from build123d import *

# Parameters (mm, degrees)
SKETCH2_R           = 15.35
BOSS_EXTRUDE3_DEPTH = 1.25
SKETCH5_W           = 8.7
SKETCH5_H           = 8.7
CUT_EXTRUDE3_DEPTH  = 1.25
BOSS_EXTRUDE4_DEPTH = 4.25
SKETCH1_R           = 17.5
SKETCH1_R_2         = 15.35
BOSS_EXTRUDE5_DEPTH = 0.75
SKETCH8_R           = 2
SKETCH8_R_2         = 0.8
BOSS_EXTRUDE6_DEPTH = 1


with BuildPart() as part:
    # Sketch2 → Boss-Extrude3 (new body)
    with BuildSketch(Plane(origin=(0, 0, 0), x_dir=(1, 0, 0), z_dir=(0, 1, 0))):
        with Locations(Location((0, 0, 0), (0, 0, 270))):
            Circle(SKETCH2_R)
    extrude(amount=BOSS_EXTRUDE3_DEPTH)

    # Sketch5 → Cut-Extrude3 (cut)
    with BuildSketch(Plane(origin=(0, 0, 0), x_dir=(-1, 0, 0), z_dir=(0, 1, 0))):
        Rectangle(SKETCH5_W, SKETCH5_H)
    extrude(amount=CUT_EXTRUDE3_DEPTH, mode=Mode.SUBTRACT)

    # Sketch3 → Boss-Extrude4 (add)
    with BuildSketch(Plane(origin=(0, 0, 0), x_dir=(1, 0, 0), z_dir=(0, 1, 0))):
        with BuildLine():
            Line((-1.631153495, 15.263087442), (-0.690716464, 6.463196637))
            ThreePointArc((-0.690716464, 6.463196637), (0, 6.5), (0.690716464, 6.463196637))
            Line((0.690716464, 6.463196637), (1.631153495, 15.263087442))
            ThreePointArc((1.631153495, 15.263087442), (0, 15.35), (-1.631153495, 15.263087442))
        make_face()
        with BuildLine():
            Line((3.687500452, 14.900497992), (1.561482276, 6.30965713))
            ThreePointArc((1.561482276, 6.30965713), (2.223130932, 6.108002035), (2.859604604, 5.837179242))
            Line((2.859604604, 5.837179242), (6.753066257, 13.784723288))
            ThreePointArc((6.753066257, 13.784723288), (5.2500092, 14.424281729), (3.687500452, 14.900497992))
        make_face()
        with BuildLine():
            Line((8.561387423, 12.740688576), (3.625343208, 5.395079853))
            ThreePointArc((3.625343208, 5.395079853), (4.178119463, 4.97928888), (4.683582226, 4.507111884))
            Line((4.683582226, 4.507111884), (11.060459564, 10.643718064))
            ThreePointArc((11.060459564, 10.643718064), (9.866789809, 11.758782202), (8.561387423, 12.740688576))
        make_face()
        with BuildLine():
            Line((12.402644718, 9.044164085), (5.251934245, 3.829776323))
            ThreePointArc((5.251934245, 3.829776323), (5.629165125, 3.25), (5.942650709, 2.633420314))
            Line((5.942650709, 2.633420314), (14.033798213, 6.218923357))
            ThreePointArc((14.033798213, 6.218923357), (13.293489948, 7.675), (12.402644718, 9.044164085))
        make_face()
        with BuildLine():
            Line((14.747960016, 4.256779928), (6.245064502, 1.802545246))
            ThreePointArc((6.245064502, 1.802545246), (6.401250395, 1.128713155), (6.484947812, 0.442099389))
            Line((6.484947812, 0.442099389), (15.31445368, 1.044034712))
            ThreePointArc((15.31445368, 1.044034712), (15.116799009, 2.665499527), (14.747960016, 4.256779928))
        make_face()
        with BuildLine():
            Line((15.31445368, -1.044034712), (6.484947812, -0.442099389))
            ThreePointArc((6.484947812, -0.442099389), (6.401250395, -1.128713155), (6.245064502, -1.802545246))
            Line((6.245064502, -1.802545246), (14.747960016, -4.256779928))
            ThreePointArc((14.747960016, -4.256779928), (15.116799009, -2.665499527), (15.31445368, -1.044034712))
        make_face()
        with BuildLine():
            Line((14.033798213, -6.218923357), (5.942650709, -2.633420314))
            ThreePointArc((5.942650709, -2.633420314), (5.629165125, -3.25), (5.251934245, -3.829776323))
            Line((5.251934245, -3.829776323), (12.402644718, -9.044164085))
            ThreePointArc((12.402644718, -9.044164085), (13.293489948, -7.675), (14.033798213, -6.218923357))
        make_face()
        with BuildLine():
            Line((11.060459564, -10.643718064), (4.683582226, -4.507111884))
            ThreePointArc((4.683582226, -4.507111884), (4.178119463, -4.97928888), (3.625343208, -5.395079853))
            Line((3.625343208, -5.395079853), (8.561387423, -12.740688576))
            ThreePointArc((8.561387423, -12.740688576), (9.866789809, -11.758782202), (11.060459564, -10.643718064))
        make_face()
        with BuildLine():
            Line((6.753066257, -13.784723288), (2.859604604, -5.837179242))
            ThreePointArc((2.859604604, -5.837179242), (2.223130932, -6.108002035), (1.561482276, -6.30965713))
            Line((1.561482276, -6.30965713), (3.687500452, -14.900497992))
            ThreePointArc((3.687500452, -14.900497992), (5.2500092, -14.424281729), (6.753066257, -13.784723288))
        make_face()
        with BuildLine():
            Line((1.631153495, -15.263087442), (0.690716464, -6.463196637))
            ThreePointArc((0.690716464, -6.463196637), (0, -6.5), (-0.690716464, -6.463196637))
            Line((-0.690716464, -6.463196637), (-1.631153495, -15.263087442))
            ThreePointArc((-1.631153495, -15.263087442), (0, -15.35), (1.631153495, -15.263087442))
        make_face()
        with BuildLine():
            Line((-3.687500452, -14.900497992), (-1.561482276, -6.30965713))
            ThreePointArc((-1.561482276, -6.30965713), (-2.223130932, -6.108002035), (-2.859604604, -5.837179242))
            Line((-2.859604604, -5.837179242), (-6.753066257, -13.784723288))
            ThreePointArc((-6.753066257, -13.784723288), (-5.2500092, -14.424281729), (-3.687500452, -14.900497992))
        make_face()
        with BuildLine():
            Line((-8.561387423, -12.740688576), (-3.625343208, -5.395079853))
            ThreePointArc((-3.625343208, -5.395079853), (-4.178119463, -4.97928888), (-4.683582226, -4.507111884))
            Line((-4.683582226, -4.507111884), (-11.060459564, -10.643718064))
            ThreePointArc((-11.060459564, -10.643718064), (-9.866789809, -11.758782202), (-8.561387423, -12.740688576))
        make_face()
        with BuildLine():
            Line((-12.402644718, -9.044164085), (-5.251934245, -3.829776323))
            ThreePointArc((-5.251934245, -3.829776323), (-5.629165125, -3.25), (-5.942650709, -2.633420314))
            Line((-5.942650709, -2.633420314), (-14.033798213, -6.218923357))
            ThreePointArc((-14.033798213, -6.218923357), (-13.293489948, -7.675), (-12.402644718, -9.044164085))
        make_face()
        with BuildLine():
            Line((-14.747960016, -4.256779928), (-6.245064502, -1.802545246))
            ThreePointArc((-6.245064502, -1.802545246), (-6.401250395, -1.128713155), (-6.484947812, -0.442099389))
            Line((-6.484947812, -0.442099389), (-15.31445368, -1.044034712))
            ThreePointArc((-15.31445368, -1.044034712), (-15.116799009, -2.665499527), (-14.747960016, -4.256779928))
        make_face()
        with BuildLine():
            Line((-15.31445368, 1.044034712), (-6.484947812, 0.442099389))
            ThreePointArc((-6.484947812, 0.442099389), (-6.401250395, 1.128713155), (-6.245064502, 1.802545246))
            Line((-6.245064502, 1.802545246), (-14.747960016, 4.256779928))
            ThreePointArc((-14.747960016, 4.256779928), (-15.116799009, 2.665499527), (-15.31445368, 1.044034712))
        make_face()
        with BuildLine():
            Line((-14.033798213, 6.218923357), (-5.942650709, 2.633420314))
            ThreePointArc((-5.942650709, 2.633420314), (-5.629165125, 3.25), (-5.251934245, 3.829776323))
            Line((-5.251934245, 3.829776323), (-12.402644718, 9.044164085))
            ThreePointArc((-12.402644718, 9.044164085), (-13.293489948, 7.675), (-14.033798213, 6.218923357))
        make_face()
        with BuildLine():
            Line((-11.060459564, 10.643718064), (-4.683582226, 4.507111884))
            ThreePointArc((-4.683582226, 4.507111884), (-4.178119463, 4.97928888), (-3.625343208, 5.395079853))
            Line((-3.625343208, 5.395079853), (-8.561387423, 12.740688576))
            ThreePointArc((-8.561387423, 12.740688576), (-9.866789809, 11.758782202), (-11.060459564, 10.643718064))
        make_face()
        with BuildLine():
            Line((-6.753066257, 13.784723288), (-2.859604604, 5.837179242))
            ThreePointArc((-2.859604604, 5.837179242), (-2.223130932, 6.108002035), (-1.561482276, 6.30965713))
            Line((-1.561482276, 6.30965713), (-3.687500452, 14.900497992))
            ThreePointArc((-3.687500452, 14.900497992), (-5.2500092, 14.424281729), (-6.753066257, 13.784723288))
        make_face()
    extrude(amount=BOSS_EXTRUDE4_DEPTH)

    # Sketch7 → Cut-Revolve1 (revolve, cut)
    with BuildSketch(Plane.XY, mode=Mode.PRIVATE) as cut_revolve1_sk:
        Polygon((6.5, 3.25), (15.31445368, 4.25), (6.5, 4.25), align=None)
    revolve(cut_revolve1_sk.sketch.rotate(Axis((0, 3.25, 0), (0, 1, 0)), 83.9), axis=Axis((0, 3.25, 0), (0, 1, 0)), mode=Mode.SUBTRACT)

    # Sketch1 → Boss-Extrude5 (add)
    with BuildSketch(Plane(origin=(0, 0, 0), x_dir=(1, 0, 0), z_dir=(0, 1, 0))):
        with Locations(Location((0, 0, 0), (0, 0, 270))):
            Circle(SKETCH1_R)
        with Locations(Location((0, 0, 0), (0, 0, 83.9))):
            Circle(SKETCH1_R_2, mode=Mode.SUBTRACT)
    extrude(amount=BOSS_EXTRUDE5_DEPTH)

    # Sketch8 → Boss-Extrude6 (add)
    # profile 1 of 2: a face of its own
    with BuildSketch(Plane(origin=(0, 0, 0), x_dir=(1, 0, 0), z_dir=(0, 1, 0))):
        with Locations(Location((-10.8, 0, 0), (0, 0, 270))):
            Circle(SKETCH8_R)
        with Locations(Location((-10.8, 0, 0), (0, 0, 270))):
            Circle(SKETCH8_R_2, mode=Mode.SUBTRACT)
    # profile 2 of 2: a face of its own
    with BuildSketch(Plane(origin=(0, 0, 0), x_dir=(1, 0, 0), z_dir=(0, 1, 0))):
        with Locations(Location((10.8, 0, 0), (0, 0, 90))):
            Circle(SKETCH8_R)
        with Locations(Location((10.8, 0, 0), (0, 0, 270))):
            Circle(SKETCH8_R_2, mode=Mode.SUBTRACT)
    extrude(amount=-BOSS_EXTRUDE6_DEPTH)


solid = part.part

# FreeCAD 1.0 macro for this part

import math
import FreeCAD as App
import Part
import Sketcher

V = App.Vector
Q = App.Units.Quantity

doc = App.newDocument("Part")
params = doc.addObject("Spreadsheet::Sheet", "Params")
for row, (alias, value) in enumerate([
    ("sketch1_diameter", "30.7 mm"),
    ("pad1_length", "1.25 mm"),
    ("sketch2_width", "8.7 mm"),
    ("pocket1_length", "1.25 mm"),
    ("sketch3_radius", "6.5 mm"),
    ("sketch3_radius2", "15.35 mm"),
    ("pad2_length", "4.25 mm"),
    ("sketch4_height", "1 mm"),
    ("groove_angle", "360 deg"),
    ("sketch5_diameter", "35 mm"),
    ("sketch5_diameter2", "30.7 mm"),
    ("pad3_length", "0.75 mm"),
    ("sketch6_diameter", "4 mm"),
    ("sketch6_diameter2", "1.6 mm"),
    ("pad4_length", "1 mm"),
], start=1):
    params.set(f"A{row}", alias)
    params.set(f"B{row}", "=" + value)
    params.setAlias(f"B{row}", alias)

body = doc.addObject("PartDesign::Body", "Body")

# Sketch on XZ plane
sketch1 = body.newObject("Sketcher::SketchObject", "Sketch")
sketch1.AttachmentSupport = (doc.getObject("XZ_Plane"), [""])
sketch1.MapMode = "FlatFace"
sketch1.addGeometry(Part.Circle(V(0, 0, 0), V(0, 0, 1), 15), False)
sketch1.addConstraint([
    Sketcher.Constraint("Coincident", 0, 3, -1, 1),
    Sketcher.Constraint("Diameter", 0, Q("30.7 mm")),
])
sketch1.setExpression("Constraints[1]", "Params.sketch1_diameter")
pad1 = body.newObject("PartDesign::Pad", "Pad")
pad1.Profile = sketch1
pad1.setExpression("Length", "Params.pad1_length")
pad1.Reversed = True

# Sketch on XZ plane
sketch2 = body.newObject("Sketcher::SketchObject", "Sketch001")
sketch2.AttachmentSupport = (doc.getObject("XZ_Plane"), [""])
sketch2.MapMode = "FlatFace"
sketch2.addGeometry([
    Part.LineSegment(V(4, 4, 0), V(4, -4, 0)),
    Part.LineSegment(V(4, -4, 0), V(-4, -4, 0)),
    Part.LineSegment(V(-4, -4, 0), V(-4, 4, 0)),
    Part.LineSegment(V(-4, 4, 0), V(4, 4, 0)),
], False)
sketch2.addConstraint([
    Sketcher.Constraint("Coincident", 0, 2, 1, 1),
    Sketcher.Constraint("Coincident", 1, 2, 2, 1),
    Sketcher.Constraint("Coincident", 2, 2, 3, 1),
    Sketcher.Constraint("Coincident", 3, 2, 0, 1),
    Sketcher.Constraint("Vertical", 0),
    Sketcher.Constraint("Horizontal", 1),
    Sketcher.Constraint("Vertical", 2),
    Sketcher.Constraint("Horizontal", 3),
    Sketcher.Constraint("Symmetric", 0, 2, 2, 2, -1, 1),
    Sketcher.Constraint("Equal", 3, 0),
    Sketcher.Constraint("DistanceX", 1, 2, 1, 1, Q("8.7 mm")),
])
sketch2.setExpression("Constraints[10]", "Params.sketch2_width")
pocket1 = body.newObject("PartDesign::Pocket", "Pocket")
pocket1.Profile = sketch2
pocket1.setExpression("Length", "Params.pocket1_length")

# Sketch on XZ plane
sketch3 = body.newObject("Sketcher::SketchObject", "Sketch002")
sketch3.AttachmentSupport = (doc.getObject("XZ_Plane"), [""])
sketch3.MapMode = "FlatFace"
sketch3.addGeometry([
    Part.LineSegment(V(-1.6, -15.3, 0), V(-0.7, -6.5, 0)),  # 0
    Part.ArcOfCircle(Part.Circle(V(0, 0, 0), V(0, 0, 1), 6.5), math.radians(-96.1), math.radians(-83.9)),  # 1
    Part.LineSegment(V(0.7, -6.5, 0), V(1.6, -15.3, 0)),  # 2
    Part.ArcOfCircle(Part.Circle(V(0, 0, 0), V(0, 0, 1), 15.3), math.radians(-96.1), math.radians(-83.9)),  # 3
    Part.LineSegment(V(3.7, -14.9, 0), V(1.6, -6.3, 0)),  # 4
    Part.ArcOfCircle(Part.Circle(V(0, 0, 0), V(0, 0, 1), 6.5), math.radians(-76.1), math.radians(-63.9)),  # 5
    Part.LineSegment(V(2.9, -5.8, 0), V(6.8, -13.8, 0)),  # 6
    Part.ArcOfCircle(Part.Circle(V(0, 0, 0), V(0, 0, 1), 15.3), math.radians(-76.1), math.radians(-63.9)),  # 7
    Part.LineSegment(V(8.6, -12.7, 0), V(3.6, -5.4, 0)),  # 8
    Part.ArcOfCircle(Part.Circle(V(0, 0, 0), V(0, 0, 1), 6.5), math.radians(-56.1), math.radians(-43.9)),  # 9
    Part.LineSegment(V(4.7, -4.5, 0), V(11.1, -10.6, 0)),  # 10
    Part.ArcOfCircle(Part.Circle(V(0, 0, 0), V(0, 0, 1), 15.3), math.radians(-56.1), math.radians(-43.9)),  # 11
    Part.LineSegment(V(12.4, -9, 0), V(5.3, -3.8, 0)),  # 12
    Part.ArcOfCircle(Part.Circle(V(0, 0, 0), V(0, 0, 1), 6.5), math.radians(-36.1), math.radians(-23.9)),  # 13
    Part.LineSegment(V(5.9, -2.6, 0), V(14, -6.2, 0)),  # 14
    Part.ArcOfCircle(Part.Circle(V(0, 0, 0), V(0, 0, 1), 15.4), math.radians(-36.1), math.radians(-23.9)),  # 15
    Part.LineSegment(V(14.7, -4.3, 0), V(6.2, -1.8, 0)),  # 16
    Part.ArcOfCircle(Part.Circle(V(0, 0, 0), V(0, 0, 1), 6.5), math.radians(-16.1), math.radians(-3.9)),  # 17
    Part.LineSegment(V(6.5, -0.4, 0), V(15.3, -1, 0)),  # 18
    Part.ArcOfCircle(Part.Circle(V(0, 0, 0), V(0, 0, 1), 15.3), math.radians(-16.1), math.radians(-3.9)),  # 19
    Part.LineSegment(V(15.3, 1, 0), V(6.5, 0.4, 0)),  # 20
    Part.ArcOfCircle(Part.Circle(V(0, 0, 0), V(0, 0, 1), 6.5), math.radians(3.9), math.radians(16.1)),  # 21
    Part.LineSegment(V(6.2, 1.8, 0), V(14.7, 4.3, 0)),  # 22
    Part.ArcOfCircle(Part.Circle(V(0, 0, 0), V(0, 0, 1), 15.3), math.radians(3.9), math.radians(16.1)),  # 23
    Part.LineSegment(V(14, 6.2, 0), V(5.9, 2.6, 0)),  # 24
    Part.ArcOfCircle(Part.Circle(V(0, 0, 0), V(0, 0, 1), 6.5), math.radians(23.9), math.radians(36.1)),  # 25
    Part.LineSegment(V(5.3, 3.8, 0), V(12.4, 9, 0)),  # 26
    Part.ArcOfCircle(Part.Circle(V(0, 0, 0), V(0, 0, 1), 15.4), math.radians(23.9), math.radians(36.1)),  # 27
    Part.LineSegment(V(11.1, 10.6, 0), V(4.7, 4.5, 0)),  # 28
    Part.ArcOfCircle(Part.Circle(V(0, 0, 0), V(0, 0, 1), 6.5), math.radians(43.9), math.radians(56.1)),  # 29
    Part.LineSegment(V(3.6, 5.4, 0), V(8.6, 12.7, 0)),  # 30
    Part.ArcOfCircle(Part.Circle(V(0, 0, 0), V(0, 0, 1), 15.3), math.radians(43.9), math.radians(56.1)),  # 31
    Part.LineSegment(V(6.8, 13.8, 0), V(2.9, 5.8, 0)),  # 32
    Part.ArcOfCircle(Part.Circle(V(0, 0, 0), V(0, 0, 1), 6.5), math.radians(63.9), math.radians(76.1)),  # 33
    Part.LineSegment(V(1.6, 6.3, 0), V(3.7, 14.9, 0)),  # 34
    Part.ArcOfCircle(Part.Circle(V(0, 0, 0), V(0, 0, 1), 15.3), math.radians(63.9), math.radians(76.1)),  # 35
    Part.LineSegment(V(1.6, 15.3, 0), V(0.7, 6.5, 0)),  # 36
    Part.ArcOfCircle(Part.Circle(V(0, 0, 0), V(0, 0, 1), 6.5), math.radians(83.9), math.radians(96.1)),  # 37
    Part.LineSegment(V(-0.7, 6.5, 0), V(-1.6, 15.3, 0)),  # 38
    Part.ArcOfCircle(Part.Circle(V(0, 0, 0), V(0, 0, 1), 15.3), math.radians(83.9), math.radians(96.1)),  # 39
    Part.LineSegment(V(-3.7, 14.9, 0), V(-1.6, 6.3, 0)),  # 40
    Part.ArcOfCircle(Part.Circle(V(0, 0, 0), V(0, 0, 1), 6.5), math.radians(103.9), math.radians(116.1)),  # 41
    Part.LineSegment(V(-2.9, 5.8, 0), V(-6.8, 13.8, 0)),  # 42
    Part.ArcOfCircle(Part.Circle(V(0, 0, 0), V(0, 0, 1), 15.3), math.radians(103.9), math.radians(116.1)),  # 43
    Part.LineSegment(V(-8.6, 12.7, 0), V(-3.6, 5.4, 0)),  # 44
    Part.ArcOfCircle(Part.Circle(V(0, 0, 0), V(0, 0, 1), 6.5), math.radians(123.9), math.radians(136.1)),  # 45
    Part.LineSegment(V(-4.7, 4.5, 0), V(-11.1, 10.6, 0)),  # 46
    Part.ArcOfCircle(Part.Circle(V(0, 0, 0), V(0, 0, 1), 15.3), math.radians(123.9), math.radians(136.1)),  # 47
    Part.LineSegment(V(-12.4, 9, 0), V(-5.3, 3.8, 0)),  # 48
    Part.ArcOfCircle(Part.Circle(V(0, 0, 0), V(0, 0, 1), 6.5), math.radians(143.9), math.radians(156.1)),  # 49
    Part.LineSegment(V(-5.9, 2.6, 0), V(-14, 6.2, 0)),  # 50
    Part.ArcOfCircle(Part.Circle(V(0, 0, 0), V(0, 0, 1), 15.4), math.radians(143.9), math.radians(156.1)),  # 51
    Part.LineSegment(V(-14.7, 4.3, 0), V(-6.2, 1.8, 0)),  # 52
    Part.ArcOfCircle(Part.Circle(V(0, 0, 0), V(0, 0, 1), 6.5), math.radians(163.9), math.radians(176.1)),  # 53
    Part.LineSegment(V(-6.5, 0.4, 0), V(-15.3, 1, 0)),  # 54
    Part.ArcOfCircle(Part.Circle(V(0, 0, 0), V(0, 0, 1), 15.3), math.radians(163.9), math.radians(176.1)),  # 55
    Part.LineSegment(V(-15.3, -1, 0), V(-6.5, -0.4, 0)),  # 56
    Part.ArcOfCircle(Part.Circle(V(0, 0, 0), V(0, 0, 1), 6.5), math.radians(-176.1), math.radians(-163.9)),  # 57
    Part.LineSegment(V(-6.2, -1.8, 0), V(-14.7, -4.3, 0)),  # 58
    Part.ArcOfCircle(Part.Circle(V(0, 0, 0), V(0, 0, 1), 15.3), math.radians(-176.1), math.radians(-163.9)),  # 59
    Part.LineSegment(V(-14, -6.2, 0), V(-5.9, -2.6, 0)),  # 60
    Part.ArcOfCircle(Part.Circle(V(0, 0, 0), V(0, 0, 1), 6.5), math.radians(-156.1), math.radians(-143.9)),  # 61
    Part.LineSegment(V(-5.3, -3.8, 0), V(-12.4, -9, 0)),  # 62
    Part.ArcOfCircle(Part.Circle(V(0, 0, 0), V(0, 0, 1), 15.4), math.radians(-156.1), math.radians(-143.9)),  # 63
    Part.LineSegment(V(-11.1, -10.6, 0), V(-4.7, -4.5, 0)),  # 64
    Part.ArcOfCircle(Part.Circle(V(0, 0, 0), V(0, 0, 1), 6.5), math.radians(-136.1), math.radians(-123.9)),  # 65
    Part.LineSegment(V(-3.6, -5.4, 0), V(-8.6, -12.7, 0)),  # 66
    Part.ArcOfCircle(Part.Circle(V(0, 0, 0), V(0, 0, 1), 15.3), math.radians(-136.1), math.radians(-123.9)),  # 67
    Part.LineSegment(V(-6.8, -13.8, 0), V(-2.9, -5.8, 0)),  # 68
    Part.ArcOfCircle(Part.Circle(V(0, 0, 0), V(0, 0, 1), 6.5), math.radians(-116.1), math.radians(-103.9)),  # 69
    Part.LineSegment(V(-1.6, -6.3, 0), V(-3.7, -14.9, 0)),  # 70
    Part.ArcOfCircle(Part.Circle(V(0, 0, 0), V(0, 0, 1), 15.3), math.radians(-116.1), math.radians(-103.9)),  # 71
], False)
sketch3.addConstraint([
    Sketcher.Constraint("Coincident", 0, 2, 1, 1),
    Sketcher.Constraint("Coincident", 1, 2, 2, 1),
    Sketcher.Constraint("Coincident", 2, 2, 3, 2),
    Sketcher.Constraint("Coincident", 3, 1, 0, 1),
    Sketcher.Constraint("Coincident", 4, 2, 5, 1),
    Sketcher.Constraint("Coincident", 5, 2, 6, 1),
    Sketcher.Constraint("Coincident", 6, 2, 7, 2),
    Sketcher.Constraint("Coincident", 7, 1, 4, 1),
    Sketcher.Constraint("Coincident", 8, 2, 9, 1),
    Sketcher.Constraint("Coincident", 9, 2, 10, 1),
    Sketcher.Constraint("Coincident", 10, 2, 11, 2),
    Sketcher.Constraint("Coincident", 11, 1, 8, 1),
    Sketcher.Constraint("Coincident", 12, 2, 13, 1),
    Sketcher.Constraint("Coincident", 13, 2, 14, 1),
    Sketcher.Constraint("Coincident", 14, 2, 15, 2),
    Sketcher.Constraint("Coincident", 15, 1, 12, 1),
    Sketcher.Constraint("Coincident", 16, 2, 17, 1),
    Sketcher.Constraint("Coincident", 17, 2, 18, 1),
    Sketcher.Constraint("Coincident", 18, 2, 19, 2),
    Sketcher.Constraint("Coincident", 19, 1, 16, 1),
    Sketcher.Constraint("Coincident", 20, 2, 21, 1),
    Sketcher.Constraint("Coincident", 21, 2, 22, 1),
    Sketcher.Constraint("Coincident", 22, 2, 23, 2),
    Sketcher.Constraint("Coincident", 23, 1, 20, 1),
    Sketcher.Constraint("Coincident", 24, 2, 25, 1),
    Sketcher.Constraint("Coincident", 25, 2, 26, 1),
    Sketcher.Constraint("Coincident", 26, 2, 27, 2),
    Sketcher.Constraint("Coincident", 27, 1, 24, 1),
    Sketcher.Constraint("Coincident", 28, 2, 29, 1),
    Sketcher.Constraint("Coincident", 29, 2, 30, 1),
    Sketcher.Constraint("Coincident", 30, 2, 31, 2),
    Sketcher.Constraint("Coincident", 31, 1, 28, 1),
    Sketcher.Constraint("Coincident", 32, 2, 33, 1),
    Sketcher.Constraint("Coincident", 33, 2, 34, 1),
    Sketcher.Constraint("Coincident", 34, 2, 35, 2),
    Sketcher.Constraint("Coincident", 35, 1, 32, 1),
    Sketcher.Constraint("Coincident", 36, 2, 37, 1),
    Sketcher.Constraint("Coincident", 37, 2, 38, 1),
    Sketcher.Constraint("Coincident", 38, 2, 39, 2),
    Sketcher.Constraint("Coincident", 39, 1, 36, 1),
    Sketcher.Constraint("Coincident", 40, 2, 41, 1),
    Sketcher.Constraint("Coincident", 41, 2, 42, 1),
    Sketcher.Constraint("Coincident", 42, 2, 43, 2),
    Sketcher.Constraint("Coincident", 43, 1, 40, 1),
    Sketcher.Constraint("Coincident", 44, 2, 45, 1),
    Sketcher.Constraint("Coincident", 45, 2, 46, 1),
    Sketcher.Constraint("Coincident", 46, 2, 47, 2),
    Sketcher.Constraint("Coincident", 47, 1, 44, 1),
    Sketcher.Constraint("Coincident", 48, 2, 49, 1),
    Sketcher.Constraint("Coincident", 49, 2, 50, 1),
    Sketcher.Constraint("Coincident", 50, 2, 51, 2),
    Sketcher.Constraint("Coincident", 51, 1, 48, 1),
    Sketcher.Constraint("Coincident", 52, 2, 53, 1),
    Sketcher.Constraint("Coincident", 53, 2, 54, 1),
    Sketcher.Constraint("Coincident", 54, 2, 55, 2),
    Sketcher.Constraint("Coincident", 55, 1, 52, 1),
    Sketcher.Constraint("Coincident", 56, 2, 57, 1),
    Sketcher.Constraint("Coincident", 57, 2, 58, 1),
    Sketcher.Constraint("Coincident", 58, 2, 59, 2),
    Sketcher.Constraint("Coincident", 59, 1, 56, 1),
    Sketcher.Constraint("Coincident", 60, 2, 61, 1),
    Sketcher.Constraint("Coincident", 61, 2, 62, 1),
    Sketcher.Constraint("Coincident", 62, 2, 63, 2),
    Sketcher.Constraint("Coincident", 63, 1, 60, 1),
    Sketcher.Constraint("Coincident", 64, 2, 65, 1),
    Sketcher.Constraint("Coincident", 65, 2, 66, 1),
    Sketcher.Constraint("Coincident", 66, 2, 67, 2),
    Sketcher.Constraint("Coincident", 67, 1, 64, 1),
    Sketcher.Constraint("Coincident", 68, 2, 69, 1),
    Sketcher.Constraint("Coincident", 69, 2, 70, 1),
    Sketcher.Constraint("Coincident", 70, 2, 71, 2),
    Sketcher.Constraint("Coincident", 71, 1, 68, 1),
    Sketcher.Constraint("Coincident", 1, 3, -1, 1),
    Sketcher.Constraint("Coincident", 3, 3, -1, 1),
    Sketcher.Constraint("Coincident", 5, 3, -1, 1),
    Sketcher.Constraint("Coincident", 7, 3, -1, 1),
    Sketcher.Constraint("Coincident", 9, 3, -1, 1),
    Sketcher.Constraint("Coincident", 11, 3, -1, 1),
    Sketcher.Constraint("Coincident", 13, 3, -1, 1),
    Sketcher.Constraint("Coincident", 15, 3, -1, 1),
    Sketcher.Constraint("Coincident", 17, 3, -1, 1),
    Sketcher.Constraint("Coincident", 19, 3, -1, 1),
    Sketcher.Constraint("Coincident", 21, 3, -1, 1),
    Sketcher.Constraint("Coincident", 23, 3, -1, 1),
    Sketcher.Constraint("Coincident", 25, 3, -1, 1),
    Sketcher.Constraint("Coincident", 27, 3, -1, 1),
    Sketcher.Constraint("Coincident", 29, 3, -1, 1),
    Sketcher.Constraint("Coincident", 31, 3, -1, 1),
    Sketcher.Constraint("Coincident", 33, 3, -1, 1),
    Sketcher.Constraint("Coincident", 35, 3, -1, 1),
    Sketcher.Constraint("Coincident", 37, 3, -1, 1),
    Sketcher.Constraint("Coincident", 39, 3, -1, 1),
    Sketcher.Constraint("Coincident", 41, 3, -1, 1),
    Sketcher.Constraint("Coincident", 43, 3, -1, 1),
    Sketcher.Constraint("Coincident", 45, 3, -1, 1),
    Sketcher.Constraint("Coincident", 47, 3, -1, 1),
    Sketcher.Constraint("Coincident", 49, 3, -1, 1),
    Sketcher.Constraint("Coincident", 51, 3, -1, 1),
    Sketcher.Constraint("Coincident", 53, 3, -1, 1),
    Sketcher.Constraint("Coincident", 55, 3, -1, 1),
    Sketcher.Constraint("Coincident", 57, 3, -1, 1),
    Sketcher.Constraint("Coincident", 59, 3, -1, 1),
    Sketcher.Constraint("Coincident", 61, 3, -1, 1),
    Sketcher.Constraint("Coincident", 63, 3, -1, 1),
    Sketcher.Constraint("Coincident", 65, 3, -1, 1),
    Sketcher.Constraint("Coincident", 67, 3, -1, 1),
    Sketcher.Constraint("Coincident", 69, 3, -1, 1),
    Sketcher.Constraint("Coincident", 71, 3, -1, 1),
    Sketcher.Constraint("Equal", 1, 5),
    Sketcher.Constraint("Equal", 3, 7),
    Sketcher.Constraint("Equal", 5, 9),
    Sketcher.Constraint("Equal", 7, 11),
    Sketcher.Constraint("Equal", 9, 13),
    Sketcher.Constraint("Equal", 11, 15),
    Sketcher.Constraint("Equal", 13, 17),
    Sketcher.Constraint("Equal", 15, 19),
    Sketcher.Constraint("Equal", 17, 21),
    Sketcher.Constraint("Equal", 19, 23),
    Sketcher.Constraint("Equal", 21, 25),
    Sketcher.Constraint("Equal", 23, 27),
    Sketcher.Constraint("Equal", 25, 29),
    Sketcher.Constraint("Equal", 27, 31),
    Sketcher.Constraint("Equal", 29, 33),
    Sketcher.Constraint("Equal", 31, 35),
    Sketcher.Constraint("Equal", 33, 37),
    Sketcher.Constraint("Equal", 35, 39),
    Sketcher.Constraint("Equal", 37, 41),
    Sketcher.Constraint("Equal", 39, 43),
    Sketcher.Constraint("Equal", 41, 45),
    Sketcher.Constraint("Equal", 43, 47),
    Sketcher.Constraint("Equal", 45, 49),
    Sketcher.Constraint("Equal", 47, 51),
    Sketcher.Constraint("Equal", 49, 53),
    Sketcher.Constraint("Equal", 51, 55),
    Sketcher.Constraint("Equal", 53, 57),
    Sketcher.Constraint("Equal", 55, 59),
    Sketcher.Constraint("Equal", 57, 61),
    Sketcher.Constraint("Equal", 59, 63),
    Sketcher.Constraint("Equal", 61, 65),
    Sketcher.Constraint("Equal", 63, 67),
    Sketcher.Constraint("Equal", 65, 69),
    Sketcher.Constraint("Equal", 67, 71),
    Sketcher.Constraint("Parallel", 0, 36),
    Sketcher.Constraint("Parallel", 2, 38),
    Sketcher.Constraint("Parallel", 4, 40),
    Sketcher.Constraint("Parallel", 6, 42),
    Sketcher.Constraint("Parallel", 8, 44),
    Sketcher.Constraint("Parallel", 10, 46),
    Sketcher.Constraint("Parallel", 12, 48),
    Sketcher.Constraint("Parallel", 14, 50),
    Sketcher.Constraint("Parallel", 16, 52),
    Sketcher.Constraint("Parallel", 18, 54),
    Sketcher.Constraint("Parallel", 20, 56),
    Sketcher.Constraint("Parallel", 22, 58),
    Sketcher.Constraint("Parallel", 24, 60),
    Sketcher.Constraint("Parallel", 26, 62),
    Sketcher.Constraint("Parallel", 28, 64),
    Sketcher.Constraint("Parallel", 30, 66),
    Sketcher.Constraint("Parallel", 32, 68),
    Sketcher.Constraint("Parallel", 34, 70),
    Sketcher.Constraint("Horizontal", 0, 2, 1, 2),
    Sketcher.Constraint("Horizontal", 2, 2, 3, 1),
    Sketcher.Constraint("Horizontal", 36, 2, 37, 2),
    Sketcher.Constraint("Horizontal", 33, 2, 40, 2),
    Sketcher.Constraint("Horizontal", 32, 2, 41, 2),
    Sketcher.Constraint("Horizontal", 35, 1, 42, 2),
    Sketcher.Constraint("Horizontal", 34, 2, 43, 1),
    Sketcher.Constraint("Horizontal", 29, 2, 44, 2),
    Sketcher.Constraint("Horizontal", 28, 2, 45, 2),
    Sketcher.Constraint("Horizontal", 31, 1, 46, 2),
    Sketcher.Constraint("Horizontal", 30, 2, 47, 1),
    Sketcher.Constraint("Horizontal", 25, 2, 48, 2),
    Sketcher.Constraint("Horizontal", 24, 2, 49, 2),
    Sketcher.Constraint("Horizontal", 27, 1, 50, 2),
    Sketcher.Constraint("Horizontal", 26, 2, 51, 1),
    Sketcher.Constraint("Horizontal", 21, 2, 52, 2),
    Sketcher.Constraint("Horizontal", 20, 2, 53, 2),
    Sketcher.Constraint("Horizontal", 23, 1, 54, 2),
    Sketcher.Constraint("Horizontal", 22, 2, 55, 1),
    Sketcher.Constraint("Horizontal", 17, 2, 56, 2),
    Sketcher.Constraint("Horizontal", 16, 2, 57, 2),
    Sketcher.Constraint("Horizontal", 13, 2, 60, 2),
    Sketcher.Constraint("Horizontal", 12, 2, 61, 2),
    Sketcher.Constraint("Horizontal", 9, 2, 64, 2),
    Sketcher.Constraint("Horizontal", 8, 2, 65, 2),
    Sketcher.Constraint("Horizontal", 5, 2, 68, 2),
    Sketcher.Constraint("Horizontal", 4, 2, 69, 2),
    Sketcher.Constraint("Vertical", 17, 2, 20, 2),
    Sketcher.Constraint("Vertical", 16, 2, 21, 2),
    Sketcher.Constraint("Vertical", 13, 2, 24, 2),
    Sketcher.Constraint("Vertical", 12, 2, 25, 2),
    Sketcher.Constraint("Vertical", 9, 2, 28, 2),
    Sketcher.Constraint("Vertical", 8, 2, 29, 2),
    Sketcher.Constraint("Vertical", 5, 2, 32, 2),
    Sketcher.Constraint("Vertical", 4, 2, 33, 2),
    Sketcher.Constraint("Vertical", 1, 2, 36, 2),
    Sketcher.Constraint("Radius", 1, Q("6.5 mm")),
    Sketcher.Constraint("Radius", 3, Q("15.35 mm")),
    Sketcher.Constraint("Angle", 0, Q("83.9 deg")),
    Sketcher.Constraint("Angle", 4, Q("103.9 deg")),
    Sketcher.Constraint("Angle", 6, Q("-63.9 deg")),
    Sketcher.Constraint("Angle", 8, Q("123.9 deg")),
    Sketcher.Constraint("Angle", 10, Q("-43.9 deg")),
    Sketcher.Constraint("Angle", 12, Q("143.9 deg")),
    Sketcher.Constraint("Angle", 14, Q("-23.9 deg")),
    Sketcher.Constraint("Angle", 16, Q("163.9 deg")),
    Sketcher.Constraint("Angle", 18, Q("-3.9 deg")),
    Sketcher.Constraint("DistanceX", -1, 1, 7, 1, Q("3.6875 mm")),
    Sketcher.Constraint("DistanceX", -1, 1, 14, 2, Q("14.033798 mm")),
    Sketcher.Constraint("DistanceY", 17, 2, -1, 1, Q("0.442099 mm")),
    Sketcher.Constraint("DistanceY", 5, 2, -1, 1, Q("5.837179 mm")),
    Sketcher.Constraint("DistanceY", 8, 2, -1, 1, Q("5.39508 mm")),
    Sketcher.Constraint("DistanceY", 9, 2, -1, 1, Q("4.507112 mm")),
    Sketcher.Constraint("DistanceX", -1, 1, 19, 1, Q("14.74796 mm")),
    Sketcher.Constraint("DistanceX", 0, 2, -1, 1, Q("0.690716 mm")),
    Sketcher.Constraint("DistanceX", -1, 1, 12, 2, Q("5.251934 mm")),
])
sketch3.setExpression("Constraints[196]", "Params.sketch3_radius")
sketch3.setExpression("Constraints[197]", "Params.sketch3_radius2")
pad2 = body.newObject("PartDesign::Pad", "Pad001")
pad2.Profile = sketch3
pad2.setExpression("Length", "Params.pad2_length")
pad2.Reversed = True

# Sketch on XY plane
sketch4 = body.newObject("Sketcher::SketchObject", "Sketch003")
sketch4.AttachmentSupport = (doc.getObject("XY_Plane"), [""])
sketch4.MapMode = "FlatFace"
sketch4.addGeometry([
    Part.LineSegment(V(6.5, 3.2, 0), V(15.3, 4.2, 0)),
    Part.LineSegment(V(15.3, 4.2, 0), V(6.5, 4.2, 0)),
    Part.LineSegment(V(6.5, 4.2, 0), V(6.5, 3.2, 0)),
], False)
sketch4.addConstraint([
    Sketcher.Constraint("Coincident", 0, 2, 1, 1),
    Sketcher.Constraint("Coincident", 1, 2, 2, 1),
    Sketcher.Constraint("Coincident", 2, 2, 0, 1),
    Sketcher.Constraint("Horizontal", 1),
    Sketcher.Constraint("Vertical", 2),
    Sketcher.Constraint("DistanceY", 2, 2, 2, 1, Q("1 mm")),
    Sketcher.Constraint("DistanceX", -1, 1, 1, 2, Q("6.5 mm")),
    Sketcher.Constraint("DistanceY", -1, 1, 0, 2, Q("4.25 mm")),
    Sketcher.Constraint("DistanceX", 1, 2, 1, 1, Q("8.814454 mm")),
])
sketch4.setExpression("Constraints[5]", "Params.sketch4_height")
groove = body.newObject("PartDesign::Groove", "Groove")
groove.Profile = sketch4
groove.ReferenceAxis = (sketch4, ["V_Axis"])
groove.setExpression("Angle", "Params.groove_angle")

# Sketch on XZ plane
sketch5 = body.newObject("Sketcher::SketchObject", "Sketch004")
sketch5.AttachmentSupport = (doc.getObject("XZ_Plane"), [""])
sketch5.MapMode = "FlatFace"
sketch5.addGeometry([
    Part.Circle(V(0, 0, 0), V(0, 0, 1), 18),
    Part.Circle(V(0, 0, 0), V(0, 0, 1), 15),
], False)
sketch5.addConstraint([
    Sketcher.Constraint("Coincident", 0, 3, -1, 1),
    Sketcher.Constraint("Coincident", 1, 3, -1, 1),
    Sketcher.Constraint("Diameter", 0, Q("35 mm")),
    Sketcher.Constraint("Diameter", 1, Q("30.7 mm")),
])
sketch5.setExpression("Constraints[2]", "Params.sketch5_diameter")
sketch5.setExpression("Constraints[3]", "Params.sketch5_diameter2")
pad3 = body.newObject("PartDesign::Pad", "Pad002")
pad3.Profile = sketch5
pad3.setExpression("Length", "Params.pad3_length")
pad3.Reversed = True

# Sketch on XZ plane
sketch6 = body.newObject("Sketcher::SketchObject", "Sketch005")
sketch6.AttachmentSupport = (doc.getObject("XZ_Plane"), [""])
sketch6.MapMode = "FlatFace"
sketch6.addGeometry([
    Part.Circle(V(-10.8, 0, 0), V(0, 0, 1), 2),
    Part.Circle(V(-10.8, 0, 0), V(0, 0, 1), 0.8),
    Part.Circle(V(10.8, 0, 0), V(0, 0, 1), 2),
    Part.Circle(V(10.8, 0, 0), V(0, 0, 1), 0.8),
], False)
sketch6.addConstraint([
    Sketcher.Constraint("Coincident", 1, 3, 0, 3),
    Sketcher.Constraint("Coincident", 3, 3, 2, 3),
    Sketcher.Constraint("Equal", 0, 2),
    Sketcher.Constraint("Equal", 1, 3),
    Sketcher.Constraint("Symmetric", 0, 3, 2, 3, -1, 1),
    Sketcher.Constraint("PointOnObject", 0, 3, -1),
    Sketcher.Constraint("Diameter", 0, Q("4 mm")),
    Sketcher.Constraint("Diameter", 1, Q("1.6 mm")),
    Sketcher.Constraint("DistanceX", 0, 3, -1, 1, Q("10.8 mm")),
])
sketch6.setExpression("Constraints[6]", "Params.sketch6_diameter")
sketch6.setExpression("Constraints[7]", "Params.sketch6_diameter2")
pad4 = body.newObject("PartDesign::Pad", "Pad003")
pad4.Profile = sketch6
pad4.setExpression("Length", "Params.pad4_length")

doc.recompute()
